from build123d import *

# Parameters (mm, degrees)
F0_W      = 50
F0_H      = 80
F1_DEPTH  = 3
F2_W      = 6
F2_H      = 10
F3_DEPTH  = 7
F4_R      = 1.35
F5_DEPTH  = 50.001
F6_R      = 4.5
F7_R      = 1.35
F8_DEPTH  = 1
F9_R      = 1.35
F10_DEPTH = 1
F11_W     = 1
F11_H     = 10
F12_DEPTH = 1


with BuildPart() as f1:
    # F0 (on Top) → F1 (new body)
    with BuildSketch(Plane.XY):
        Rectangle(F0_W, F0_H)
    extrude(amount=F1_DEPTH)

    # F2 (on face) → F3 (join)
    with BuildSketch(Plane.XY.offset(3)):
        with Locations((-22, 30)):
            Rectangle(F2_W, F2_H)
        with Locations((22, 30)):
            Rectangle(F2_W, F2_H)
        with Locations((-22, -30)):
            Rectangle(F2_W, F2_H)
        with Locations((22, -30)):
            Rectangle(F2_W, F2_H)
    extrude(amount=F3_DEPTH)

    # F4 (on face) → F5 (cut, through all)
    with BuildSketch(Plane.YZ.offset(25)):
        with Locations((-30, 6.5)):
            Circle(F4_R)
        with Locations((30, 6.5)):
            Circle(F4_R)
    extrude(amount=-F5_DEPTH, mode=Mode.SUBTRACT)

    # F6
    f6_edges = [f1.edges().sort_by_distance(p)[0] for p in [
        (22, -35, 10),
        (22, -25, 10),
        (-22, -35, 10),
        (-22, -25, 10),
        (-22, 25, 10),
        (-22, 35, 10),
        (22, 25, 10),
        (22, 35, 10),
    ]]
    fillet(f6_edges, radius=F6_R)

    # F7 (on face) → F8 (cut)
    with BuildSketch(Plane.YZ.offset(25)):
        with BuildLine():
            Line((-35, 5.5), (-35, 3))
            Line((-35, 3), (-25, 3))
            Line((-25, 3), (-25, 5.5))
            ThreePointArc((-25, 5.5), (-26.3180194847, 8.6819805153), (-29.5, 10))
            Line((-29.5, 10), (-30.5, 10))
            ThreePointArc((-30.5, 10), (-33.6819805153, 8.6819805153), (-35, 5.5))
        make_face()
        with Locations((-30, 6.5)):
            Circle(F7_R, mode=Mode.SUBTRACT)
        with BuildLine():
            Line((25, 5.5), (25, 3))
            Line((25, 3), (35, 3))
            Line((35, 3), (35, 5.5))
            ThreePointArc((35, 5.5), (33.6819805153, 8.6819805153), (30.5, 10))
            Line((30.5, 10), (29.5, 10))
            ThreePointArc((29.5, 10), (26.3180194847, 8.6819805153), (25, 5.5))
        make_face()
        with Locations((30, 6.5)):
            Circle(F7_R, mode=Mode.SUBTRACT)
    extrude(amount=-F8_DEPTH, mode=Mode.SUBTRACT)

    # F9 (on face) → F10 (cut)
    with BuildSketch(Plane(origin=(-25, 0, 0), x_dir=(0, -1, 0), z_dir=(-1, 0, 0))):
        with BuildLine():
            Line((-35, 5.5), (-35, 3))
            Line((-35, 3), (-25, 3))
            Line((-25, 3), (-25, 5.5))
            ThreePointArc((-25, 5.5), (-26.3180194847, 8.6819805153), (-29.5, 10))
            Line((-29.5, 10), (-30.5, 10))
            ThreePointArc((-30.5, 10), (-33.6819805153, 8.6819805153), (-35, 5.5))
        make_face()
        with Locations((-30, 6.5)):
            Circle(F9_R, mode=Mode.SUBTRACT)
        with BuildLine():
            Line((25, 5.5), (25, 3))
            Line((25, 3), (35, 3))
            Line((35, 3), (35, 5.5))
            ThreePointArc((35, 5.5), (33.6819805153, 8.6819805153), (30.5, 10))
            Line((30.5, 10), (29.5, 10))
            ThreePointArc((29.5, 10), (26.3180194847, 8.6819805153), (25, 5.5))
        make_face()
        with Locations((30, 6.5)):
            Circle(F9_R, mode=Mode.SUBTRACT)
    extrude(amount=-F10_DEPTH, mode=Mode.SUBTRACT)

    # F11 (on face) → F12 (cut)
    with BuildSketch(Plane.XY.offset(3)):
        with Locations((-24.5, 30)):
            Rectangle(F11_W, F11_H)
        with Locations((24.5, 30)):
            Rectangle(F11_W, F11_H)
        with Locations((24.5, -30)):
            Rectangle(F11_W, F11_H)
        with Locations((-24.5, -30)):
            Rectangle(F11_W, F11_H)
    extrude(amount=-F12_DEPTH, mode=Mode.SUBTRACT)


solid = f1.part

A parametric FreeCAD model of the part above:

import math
import FreeCAD as App
import Part
import Sketcher
Q = App.Units.Quantity


def edges_at(feature, points):
    """Names of the edges that pass closest to the given points."""
    edges = feature.Shape.Edges
    near = lambda p: min(range(len(edges)), key=lambda i: edges[i].distToShape(Part.Vertex(*p))[0])
    return sorted({f"Edge{near(p) + 1}" for p in points})

doc = App.newDocument("Part")
params = doc.addObject("Spreadsheet::Sheet", "Params")
for row, (alias, value) in enumerate([
    ("sketch1_width", "50 mm"),
    ("sketch1_height", "80 mm"),
    ("pad1_length", "3 mm"),
    ("sketch2_width", "6 mm"),
    ("sketch2_height", "10 mm"),
    ("pad2_length", "7 mm"),
    ("sketch3_diameter", "2.7 mm"),
    ("fillet_radius", "4.5 mm"),
    ("sketch4_diameter", "2.7 mm"),
    ("sketch4_radius", "4.5 mm"),
    ("sketch4_width", "10 mm"),
    ("sketch4_height", "2.5 mm"),
    ("pocket2_length", "1 mm"),
    ("sketch5_diameter", "2.7 mm"),
    ("sketch5_radius", "4.5 mm"),
    ("sketch5_width", "10 mm"),
    ("sketch5_height", "2.5 mm"),
    ("pocket3_length", "1 mm"),
    ("sketch6_width", "1 mm"),
    ("sketch6_height", "10 mm"),
    ("pocket4_length", "1 mm"),
], start=1):
    params.set(f"A{row}", alias)
    params.set(f"B{row}", "=" + value)
    params.setAlias(f"B{row}", alias)

body = doc.addObject("PartDesign::Body", "Body")

# Sketch on XY plane
sketch1 = body.newObject("Sketcher::SketchObject", "Sketch")
sketch1.AttachmentSupport = (doc.getObject("XY_Plane"), [""])
sketch1.MapMode = "FlatFace"
sketch1.addGeometry(Part.LineSegment(App.Vector(-25, 40, 0), App.Vector(-25, -40, 0)), False)
sketch1.addGeometry(Part.LineSegment(App.Vector(-25, -40, 0), App.Vector(25, -40, 0)), False)
sketch1.addGeometry(Part.LineSegment(App.Vector(25, -40, 0), App.Vector(25, 40, 0)), False)
sketch1.addGeometry(Part.LineSegment(App.Vector(25, 40, 0), App.Vector(-25, 40, 0)), False)
sketch1.addConstraint(Sketcher.Constraint("Coincident", 0, 2, 1, 1))
sketch1.addConstraint(Sketcher.Constraint("Coincident", 1, 2, 2, 1))
sketch1.addConstraint(Sketcher.Constraint("Coincident", 2, 2, 3, 1))
sketch1.addConstraint(Sketcher.Constraint("Coincident", 3, 2, 0, 1))
sketch1.addConstraint(Sketcher.Constraint("Vertical", 0))
sketch1.addConstraint(Sketcher.Constraint("Horizontal", 1))
sketch1.addConstraint(Sketcher.Constraint("Vertical", 2))
sketch1.addConstraint(Sketcher.Constraint("Horizontal", 3))
sketch1.addConstraint(Sketcher.Constraint("Symmetric", 0, 2, 2, 2, -1, 1))
sketch1.addConstraint(Sketcher.Constraint("DistanceX", 1, 1, 1, 2, Q("50 mm")))
sketch1.addConstraint(Sketcher.Constraint("DistanceY", 0, 2, 0, 1, Q("80 mm")))
sketch1.setExpression("Constraints[9]", "Params.sketch1_width")
sketch1.setExpression("Constraints[10]", "Params.sketch1_height")
pad1 = body.newObject("PartDesign::Pad", "Pad")
pad1.Profile = sketch1
pad1.setExpression("Length", "Params.pad1_length")

# Sketch on XY plane
sketch2 = body.newObject("Sketcher::SketchObject", "Sketch001")
sketch2.AttachmentSupport = (doc.getObject("XY_Plane"), [""])
sketch2.MapMode = "FlatFace"
sketch2.AttachmentOffset = App.Placement(App.Vector(0, 0, 3), App.Rotation())
sketch2.addGeometry(Part.LineSegment(App.Vector(-25, 35, 0), App.Vector(-25, 25, 0)), False)
sketch2.addGeometry(Part.LineSegment(App.Vector(-25, 25, 0), App.Vector(-19, 25, 0)), False)
sketch2.addGeometry(Part.LineSegment(App.Vector(-19, 25, 0), App.Vector(-19, 35, 0)), False)
sketch2.addGeometry(Part.LineSegment(App.Vector(-19, 35, 0), App.Vector(-25, 35, 0)), False)
sketch2.addGeometry(Part.LineSegment(App.Vector(19, 35, 0), App.Vector(19, 25, 0)), False)
sketch2.addGeometry(Part.LineSegment(App.Vector(19, 25, 0), App.Vector(25, 25, 0)), False)
sketch2.addGeometry(Part.LineSegment(App.Vector(25, 25, 0), App.Vector(25, 35, 0)), False)
sketch2.addGeometry(Part.LineSegment(App.Vector(25, 35, 0), App.Vector(19, 35, 0)), False)
sketch2.addGeometry(Part.LineSegment(App.Vector(-25, -25, 0), App.Vector(-25, -35, 0)), False)
sketch2.addGeometry(Part.LineSegment(App.Vector(-25, -35, 0), App.Vector(-19, -35, 0)), False)
sketch2.addGeometry(Part.LineSegment(App.Vector(-19, -35, 0), App.Vector(-19, -25, 0)), False)
sketch2.addGeometry(Part.LineSegment(App.Vector(-19, -25, 0), App.Vector(-25, -25, 0)), False)
sketch2.addGeometry(Part.LineSegment(App.Vector(19, -25, 0), App.Vector(19, -35, 0)), False)
sketch2.addGeometry(Part.LineSegment(App.Vector(19, -35, 0), App.Vector(25, -35, 0)), False)
sketch2.addGeometry(Part.LineSegment(App.Vector(25, -35, 0), App.Vector(25, -25, 0)), False)
sketch2.addGeometry(Part.LineSegment(App.Vector(25, -25, 0), App.Vector(19, -25, 0)), False)
sketch2.addConstraint(Sketcher.Constraint("Coincident", 0, 2, 1, 1))
sketch2.addConstraint(Sketcher.Constraint("Coincident", 1, 2, 2, 1))
sketch2.addConstraint(Sketcher.Constraint("Coincident", 2, 2, 3, 1))
sketch2.addConstraint(Sketcher.Constraint("Coincident", 3, 2, 0, 1))
sketch2.addConstraint(Sketcher.Constraint("Coincident", 4, 2, 5, 1))
sketch2.addConstraint(Sketcher.Constraint("Coincident", 5, 2, 6, 1))
sketch2.addConstraint(Sketcher.Constraint("Coincident", 6, 2, 7, 1))
sketch2.addConstraint(Sketcher.Constraint("Coincident", 7, 2, 4, 1))
sketch2.addConstraint(Sketcher.Constraint("Coincident", 8, 2, 9, 1))
sketch2.addConstraint(Sketcher.Constraint("Coincident", 9, 2, 10, 1))
sketch2.addConstraint(Sketcher.Constraint("Coincident", 10, 2, 11, 1))
sketch2.addConstraint(Sketcher.Constraint("Coincident", 11, 2, 8, 1))
sketch2.addConstraint(Sketcher.Constraint("Coincident", 12, 2, 13, 1))
sketch2.addConstraint(Sketcher.Constraint("Coincident", 13, 2, 14, 1))
sketch2.addConstraint(Sketcher.Constraint("Coincident", 14, 2, 15, 1))
sketch2.addConstraint(Sketcher.Constraint("Coincident", 15, 2, 12, 1))
sketch2.addConstraint(Sketcher.Constraint("Vertical", 0))
sketch2.addConstraint(Sketcher.Constraint("Horizontal", 1))
sketch2.addConstraint(Sketcher.Constraint("Vertical", 2))
sketch2.addConstraint(Sketcher.Constraint("Horizontal", 3))
sketch2.addConstraint(Sketcher.Constraint("Vertical", 4))
sketch2.addConstraint(Sketcher.Constraint("Horizontal", 5))
sketch2.addConstraint(Sketcher.Constraint("Vertical", 6))
sketch2.addConstraint(Sketcher.Constraint("Horizontal", 7))
sketch2.addConstraint(Sketcher.Constraint("Vertical", 8))
sketch2.addConstraint(Sketcher.Constraint("Horizontal", 9))
sketch2.addConstraint(Sketcher.Constraint("Vertical", 10))
sketch2.addConstraint(Sketcher.Constraint("Horizontal", 11))
sketch2.addConstraint(Sketcher.Constraint("Vertical", 12))
sketch2.addConstraint(Sketcher.Constraint("Horizontal", 13))
sketch2.addConstraint(Sketcher.Constraint("Vertical", 14))
sketch2.addConstraint(Sketcher.Constraint("Horizontal", 15))
sketch2.addConstraint(Sketcher.Constraint("Symmetric", 6, 2, 8, 2, -1, 1))
sketch2.addConstraint(Sketcher.Constraint("Symmetric", 4, 2, 10, 2, -1, 1))
sketch2.addConstraint(Sketcher.Constraint("Symmetric", 2, 2, 12, 2, -1, 1))
sketch2.addConstraint(Sketcher.Constraint("Symmetric", 0, 2, 14, 2, -1, 1))
sketch2.addConstraint(Sketcher.Constraint("Symmetric", 1, 2, 4, 2, -2))
sketch2.addConstraint(Sketcher.Constraint("Symmetric", 3, 2, 6, 2, -2))
sketch2.addConstraint(Sketcher.Constraint("DistanceX", 1, 1, 1, 2, Q("6 mm")))
sketch2.addConstraint(Sketcher.Constraint("DistanceY", 0, 2, 0, 1, Q("10 mm")))
sketch2.addConstraint(Sketcher.Constraint("DistanceX", 0, 2, -1, 1, Q("25 mm")))
sketch2.addConstraint(Sketcher.Constraint("DistanceY", -1, 1, 0, 2, Q("25 mm")))
sketch2.setExpression("Constraints[38]", "Params.sketch2_width")
sketch2.setExpression("Constraints[39]", "Params.sketch2_height")
pad2 = body.newObject("PartDesign::Pad", "Pad001")
pad2.Profile = sketch2
pad2.setExpression("Length", "Params.pad2_length")

# Sketch on YZ plane
sketch3 = body.newObject("Sketcher::SketchObject", "Sketch002")
sketch3.AttachmentSupport = (doc.getObject("YZ_Plane"), [""])
sketch3.MapMode = "FlatFace"
sketch3.AttachmentOffset = App.Placement(App.Vector(0, 0, 25), App.Rotation())
sketch3.addGeometry(Part.Circle(App.Vector(-30, 6.5, 0), App.Vector(0, 0, 1), 1.4), False)
sketch3.addGeometry(Part.Circle(App.Vector(30, 6.5, 0), App.Vector(0, 0, 1), 1.4), False)
sketch3.addConstraint(Sketcher.Constraint("Equal", 0, 1))
sketch3.addConstraint(Sketcher.Constraint("Symmetric", 0, 3, 1, 3, -2))
sketch3.addConstraint(Sketcher.Constraint("Diameter", 0, Q("2.7 mm")))
sketch3.addConstraint(Sketcher.Constraint("DistanceX", 0, 3, -1, 1, Q("30 mm")))
sketch3.addConstraint(Sketcher.Constraint("DistanceY", -1, 1, 0, 3, Q("6.5 mm")))
sketch3.setExpression("Constraints[2]", "Params.sketch3_diameter")
pocket1 = body.newObject("PartDesign::Pocket", "Pocket")
pocket1.Profile = sketch3
pocket1.Type = "ThroughAll"
doc.recompute()

fillet = body.newObject("PartDesign::Fillet", "Fillet")
fillet.Base = (pocket1, edges_at(pocket1, [
    (22, -35, 10),
    (22, -25, 10),
    (-22, -35, 10),
    (-22, -25, 10),
    (-22, 25, 10),
    (-22, 35, 10),
    (22, 25, 10),
    (22, 35, 10),
]))
fillet.setExpression("Radius", "Params.fillet_radius")

# Sketch on YZ plane
sketch4 = body.newObject("Sketcher::SketchObject", "Sketch003")
sketch4.AttachmentSupport = (doc.getObject("YZ_Plane"), [""])
sketch4.MapMode = "FlatFace"
sketch4.AttachmentOffset = App.Placement(App.Vector(0, 0, 25), App.Rotation())
sketch4.addGeometry(Part.LineSegment(App.Vector(-35, 5.5, 0), App.Vector(-35, 3, 0)), False)
sketch4.addGeometry(Part.LineSegment(App.Vector(-35, 3, 0), App.Vector(-25, 3, 0)), False)
sketch4.addGeometry(Part.LineSegment(App.Vector(-25, 3, 0), App.Vector(-25, 5.5, 0)), False)
sketch4.addGeometry(Part.ArcOfCircle(Part.Circle(App.Vector(-29.5, 5.5, 0), App.Vector(0, 0, 1), 4.5), math.radians(0), math.radians(90)), False)
sketch4.addGeometry(Part.LineSegment(App.Vector(-29.5, 10, 0), App.Vector(-30.5, 10, 0)), False)
sketch4.addGeometry(Part.ArcOfCircle(Part.Circle(App.Vector(-30.5, 5.5, 0), App.Vector(0, 0, 1), 4.5), math.radians(90), math.radians(180)), False)
sketch4.addGeometry(Part.Circle(App.Vector(-30, 6.5, 0), App.Vector(0, 0, 1), 1.4), False)
sketch4.addGeometry(Part.LineSegment(App.Vector(25, 5.5, 0), App.Vector(25, 3, 0)), False)
sketch4.addGeometry(Part.LineSegment(App.Vector(25, 3, 0), App.Vector(35, 3, 0)), False)
sketch4.addGeometry(Part.LineSegment(App.Vector(35, 3, 0), App.Vector(35, 5.5, 0)), False)
sketch4.addGeometry(Part.ArcOfCircle(Part.Circle(App.Vector(30.5, 5.5, 0), App.Vector(0, 0, 1), 4.5), math.radians(0), math.radians(90)), False)
sketch4.addGeometry(Part.LineSegment(App.Vector(30.5, 10, 0), App.Vector(29.5, 10, 0)), False)
sketch4.addGeometry(Part.ArcOfCircle(Part.Circle(App.Vector(29.5, 5.5, 0), App.Vector(0, 0, 1), 4.5), math.radians(90), math.radians(180)), False)
sketch4.addGeometry(Part.Circle(App.Vector(30, 6.5, 0), App.Vector(0, 0, 1), 1.4), False)
sketch4.addConstraint(Sketcher.Constraint("Coincident", 0, 2, 1, 1))
sketch4.addConstraint(Sketcher.Constraint("Coincident", 1, 2, 2, 1))
sketch4.addConstraint(Sketcher.Constraint("Tangent", 2, 2, 3, 1))
sketch4.addConstraint(Sketcher.Constraint("Tangent", 3, 2, 4, 1))
sketch4.addConstraint(Sketcher.Constraint("Tangent", 4, 2, 5, 1))
sketch4.addConstraint(Sketcher.Constraint("Tangent", 5, 2, 0, 1))
sketch4.addConstraint(Sketcher.Constraint("Coincident", 7, 2, 8, 1))
sketch4.addConstraint(Sketcher.Constraint("Coincident", 8, 2, 9, 1))
sketch4.addConstraint(Sketcher.Constraint("Tangent", 9, 2, 10, 1))
sketch4.addConstraint(Sketcher.Constraint("Tangent", 10, 2, 11, 1))
sketch4.addConstraint(Sketcher.Constraint("Tangent", 11, 2, 12, 1))
sketch4.addConstraint(Sketcher.Constraint("Tangent", 12, 2, 7, 1))
sketch4.addConstraint(Sketcher.Constraint("Vertical", 0))
sketch4.addConstraint(Sketcher.Constraint("Horizontal", 1))
sketch4.addConstraint(Sketcher.Constraint("Vertical", 2))
sketch4.addConstraint(Sketcher.Constraint("Horizontal", 4))
sketch4.addConstraint(Sketcher.Constraint("Vertical", 7))
sketch4.addConstraint(Sketcher.Constraint("Horizontal", 8))
sketch4.addConstraint(Sketcher.Constraint("Vertical", 9))
sketch4.addConstraint(Sketcher.Constraint("Horizontal", 11))
sketch4.addConstraint(Sketcher.Constraint("Equal", 3, 5))
sketch4.addConstraint(Sketcher.Constraint("Equal", 5, 10))
sketch4.addConstraint(Sketcher.Constraint("Equal", 10, 12))
sketch4.addConstraint(Sketcher.Constraint("Equal", 6, 13))
sketch4.addConstraint(Sketcher.Constraint("Symmetric", 5, 3, 10, 3, -2))
sketch4.addConstraint(Sketcher.Constraint("Symmetric", 6, 3, 13, 3, -2))
sketch4.addConstraint(Sketcher.Constraint("Symmetric", 1, 2, 7, 2, -2))
sketch4.addConstraint(Sketcher.Constraint("Diameter", 6, Q("2.7 mm")))
sketch4.addConstraint(Sketcher.Constraint("Radius", 3, Q("4.5 mm")))
sketch4.addConstraint(Sketcher.Constraint("DistanceX", 1, 1, 1, 2, Q("10 mm")))
sketch4.addConstraint(Sketcher.Constraint("DistanceY", 0, 2, 0, 1, Q("2.5 mm")))
sketch4.addConstraint(Sketcher.Constraint("DistanceX", 6, 3, -1, 1, Q("30 mm")))
sketch4.addConstraint(Sketcher.Constraint("DistanceX", 0, 2, -1, 1, Q("35 mm")))
sketch4.addConstraint(Sketcher.Constraint("DistanceY", -1, 1, 0, 2, Q("3 mm")))
sketch4.addConstraint(Sketcher.Constraint("DistanceY", 3, 3, 6, 3, Q("1 mm")))
sketch4.setExpression("Constraints[27]", "Params.sketch4_diameter")
sketch4.setExpression("Constraints[28]", "Params.sketch4_radius")
sketch4.setExpression("Constraints[29]", "Params.sketch4_width")
sketch4.setExpression("Constraints[30]", "Params.sketch4_height")
pocket2 = body.newObject("PartDesign::Pocket", "Pocket001")
pocket2.Profile = sketch4
pocket2.setExpression("Length", "Params.pocket2_length")

# Sketch on YZ plane
sketch5 = body.newObject("Sketcher::SketchObject", "Sketch004")
sketch5.AttachmentSupport = (doc.getObject("YZ_Plane"), [""])
sketch5.MapMode = "FlatFace"
sketch5.AttachmentOffset = App.Placement(App.Vector(0, 0, -25), App.Rotation())
sketch5.addGeometry(Part.LineSegment(App.Vector(35, 5.5, 0), App.Vector(35, 3, 0)), False)
sketch5.addGeometry(Part.LineSegment(App.Vector(35, 3, 0), App.Vector(25, 3, 0)), False)
sketch5.addGeometry(Part.LineSegment(App.Vector(25, 3, 0), App.Vector(25, 5.5, 0)), False)
sketch5.addGeometry(Part.ArcOfCircle(Part.Circle(App.Vector(29.5, 5.5, 0), App.Vector(0, 0, 1), 4.5), math.radians(90), math.radians(180)), False)
sketch5.addGeometry(Part.LineSegment(App.Vector(29.5, 10, 0), App.Vector(30.5, 10, 0)), False)
sketch5.addGeometry(Part.ArcOfCircle(Part.Circle(App.Vector(30.5, 5.5, 0), App.Vector(0, 0, 1), 4.5), math.radians(0), math.radians(90)), False)
sketch5.addGeometry(Part.Circle(App.Vector(30, 6.5, 0), App.Vector(0, 0, 1), 1.4), False)
sketch5.addGeometry(Part.LineSegment(App.Vector(-25, 5.5, 0), App.Vector(-25, 3, 0)), False)
sketch5.addGeometry(Part.LineSegment(App.Vector(-25, 3, 0), App.Vector(-35, 3, 0)), False)
sketch5.addGeometry(Part.LineSegment(App.Vector(-35, 3, 0), App.Vector(-35, 5.5, 0)), False)
sketch5.addGeometry(Part.ArcOfCircle(Part.Circle(App.Vector(-30.5, 5.5, 0), App.Vector(0, 0, 1), 4.5), math.radians(90), math.radians(180)), False)
sketch5.addGeometry(Part.LineSegment(App.Vector(-30.5, 10, 0), App.Vector(-29.5, 10, 0)), False)
sketch5.addGeometry(Part.ArcOfCircle(Part.Circle(App.Vector(-29.5, 5.5, 0), App.Vector(0, 0, 1), 4.5), math.radians(0), math.radians(90)), False)
sketch5.addGeometry(Part.Circle(App.Vector(-30, 6.5, 0), App.Vector(0, 0, 1), 1.4), False)
sketch5.addConstraint(Sketcher.Constraint("Coincident", 0, 2, 1, 1))
sketch5.addConstraint(Sketcher.Constraint("Coincident", 1, 2, 2, 1))
sketch5.addConstraint(Sketcher.Constraint("Tangent", 2, 2, 3, 2))
sketch5.addConstraint(Sketcher.Constraint("Tangent", 3, 1, 4, 1))
sketch5.addConstraint(Sketcher.Constraint("Tangent", 4, 2, 5, 2))
sketch5.addConstraint(Sketcher.Constraint("Tangent", 5, 1, 0, 1))
sketch5.addConstraint(Sketcher.Constraint("Coincident", 7, 2, 8, 1))
sketch5.addConstraint(Sketcher.Constraint("Coincident", 8, 2, 9, 1))
sketch5.addConstraint(Sketcher.Constraint("Tangent", 9, 2, 10, 2))
sketch5.addConstraint(Sketcher.Constraint("Tangent", 10, 1, 11, 1))
sketch5.addConstraint(Sketcher.Constraint("Tangent", 11, 2, 12, 2))
sketch5.addConstraint(Sketcher.Constraint("Tangent", 12, 1, 7, 1))
sketch5.addConstraint(Sketcher.Constraint("Vertical", 0))
sketch5.addConstraint(Sketcher.Constraint("Horizontal", 1))
sketch5.addConstraint(Sketcher.Constraint("Vertical", 2))
sketch5.addConstraint(Sketcher.Constraint("Horizontal", 4))
sketch5.addConstraint(Sketcher.Constraint("Vertical", 7))
sketch5.addConstraint(Sketcher.Constraint("Horizontal", 8))
sketch5.addConstraint(Sketcher.Constraint("Vertical", 9))
sketch5.addConstraint(Sketcher.Constraint("Horizontal", 11))
sketch5.addConstraint(Sketcher.Constraint("Equal", 3, 5))
sketch5.addConstraint(Sketcher.Constraint("Equal", 5, 10))
sketch5.addConstraint(Sketcher.Constraint("Equal", 10, 12))
sketch5.addConstraint(Sketcher.Constraint("Equal", 6, 13))
sketch5.addConstraint(Sketcher.Constraint("Symmetric", 5, 3, 10, 3, -2))
sketch5.addConstraint(Sketcher.Constraint("Symmetric", 6, 3, 13, 3, -2))
sketch5.addConstraint(Sketcher.Constraint("Symmetric", 1, 2, 7, 2, -2))
sketch5.addConstraint(Sketcher.Constraint("Diameter", 6, Q("2.7 mm")))
sketch5.addConstraint(Sketcher.Constraint("Radius", 3, Q("4.5 mm")))
sketch5.addConstraint(Sketcher.Constraint("DistanceX", 1, 2, 1, 1, Q("10 mm")))
sketch5.addConstraint(Sketcher.Constraint("DistanceY", 0, 2, 0, 1, Q("2.5 mm")))
sketch5.addConstraint(Sketcher.Constraint("DistanceX", -1, 1, 6, 3, Q("30 mm")))
sketch5.addConstraint(Sketcher.Constraint("DistanceX", -1, 1, 0, 2, Q("35 mm")))
sketch5.addConstraint(Sketcher.Constraint("DistanceY", -1, 1, 0, 2, Q("3 mm")))
sketch5.addConstraint(Sketcher.Constraint("DistanceY", 3, 3, 6, 3, Q("1 mm")))
sketch5.setExpression("Constraints[27]", "Params.sketch5_diameter")
sketch5.setExpression("Constraints[28]", "Params.sketch5_radius")
sketch5.setExpression("Constraints[29]", "Params.sketch5_width")
sketch5.setExpression("Constraints[30]", "Params.sketch5_height")
pocket3 = body.newObject("PartDesign::Pocket", "Pocket002")
pocket3.Profile = sketch5
pocket3.setExpression("Length", "Params.pocket3_length")
pocket3.Reversed = True

# Sketch on XY plane
sketch6 = body.newObject("Sketcher::SketchObject", "Sketch005")
sketch6.AttachmentSupport = (doc.getObject("XY_Plane"), [""])
sketch6.MapMode = "FlatFace"
sketch6.AttachmentOffset = App.Placement(App.Vector(0, 0, 3), App.Rotation())
sketch6.addGeometry(Part.LineSegment(App.Vector(-25, 35, 0), App.Vector(-25, 25, 0)), False)
sketch6.addGeometry(Part.LineSegment(App.Vector(-25, 25, 0), App.Vector(-24, 25, 0)), False)
sketch6.addGeometry(Part.LineSegment(App.Vector(-24, 25, 0), App.Vector(-24, 35, 0)), False)
sketch6.addGeometry(Part.LineSegment(App.Vector(-24, 35, 0), App.Vector(-25, 35, 0)), False)
sketch6.addGeometry(Part.LineSegment(App.Vector(24, 35, 0), App.Vector(24, 25, 0)), False)
sketch6.addGeometry(Part.LineSegment(App.Vector(24, 25, 0), App.Vector(25, 25, 0)), False)
sketch6.addGeometry(Part.LineSegment(App.Vector(25, 25, 0), App.Vector(25, 35, 0)), False)
sketch6.addGeometry(Part.LineSegment(App.Vector(25, 35, 0), App.Vector(24, 35, 0)), False)
sketch6.addGeometry(Part.LineSegment(App.Vector(24, -25, 0), App.Vector(24, -35, 0)), False)
sketch6.addGeometry(Part.LineSegment(App.Vector(24, -35, 0), App.Vector(25, -35, 0)), False)
sketch6.addGeometry(Part.LineSegment(App.Vector(25, -35, 0), App.Vector(25, -25, 0)), False)
sketch6.addGeometry(Part.LineSegment(App.Vector(25, -25, 0), App.Vector(24, -25, 0)), False)
sketch6.addGeometry(Part.LineSegment(App.Vector(-25, -25, 0), App.Vector(-25, -35, 0)), False)
sketch6.addGeometry(Part.LineSegment(App.Vector(-25, -35, 0), App.Vector(-24, -35, 0)), False)
sketch6.addGeometry(Part.LineSegment(App.Vector(-24, -35, 0), App.Vector(-24, -25, 0)), False)
sketch6.addGeometry(Part.LineSegment(App.Vector(-24, -25, 0), App.Vector(-25, -25, 0)), False)
sketch6.addConstraint(Sketcher.Constraint("Coincident", 0, 2, 1, 1))
sketch6.addConstraint(Sketcher.Constraint("Coincident", 1, 2, 2, 1))
sketch6.addConstraint(Sketcher.Constraint("Coincident", 2, 2, 3, 1))
sketch6.addConstraint(Sketcher.Constraint("Coincident", 3, 2, 0, 1))
sketch6.addConstraint(Sketcher.Constraint("Coincident", 4, 2, 5, 1))
sketch6.addConstraint(Sketcher.Constraint("Coincident", 5, 2, 6, 1))
sketch6.addConstraint(Sketcher.Constraint("Coincident", 6, 2, 7, 1))
sketch6.addConstraint(Sketcher.Constraint("Coincident", 7, 2, 4, 1))
sketch6.addConstraint(Sketcher.Constraint("Coincident", 8, 2, 9, 1))
sketch6.addConstraint(Sketcher.Constraint("Coincident", 9, 2, 10, 1))
sketch6.addConstraint(Sketcher.Constraint("Coincident", 10, 2, 11, 1))
sketch6.addConstraint(Sketcher.Constraint("Coincident", 11, 2, 8, 1))
sketch6.addConstraint(Sketcher.Constraint("Coincident", 12, 2, 13, 1))
sketch6.addConstraint(Sketcher.Constraint("Coincident", 13, 2, 14, 1))
sketch6.addConstraint(Sketcher.Constraint("Coincident", 14, 2, 15, 1))
sketch6.addConstraint(Sketcher.Constraint("Coincident", 15, 2, 12, 1))
sketch6.addConstraint(Sketcher.Constraint("Vertical", 0))
sketch6.addConstraint(Sketcher.Constraint("Horizontal", 1))
sketch6.addConstraint(Sketcher.Constraint("Vertical", 2))
sketch6.addConstraint(Sketcher.Constraint("Horizontal", 3))
sketch6.addConstraint(Sketcher.Constraint("Vertical", 4))
sketch6.addConstraint(Sketcher.Constraint("Horizontal", 5))
sketch6.addConstraint(Sketcher.Constraint("Vertical", 6))
sketch6.addConstraint(Sketcher.Constraint("Horizontal", 7))
sketch6.addConstraint(Sketcher.Constraint("Vertical", 8))
sketch6.addConstraint(Sketcher.Constraint("Horizontal", 9))
sketch6.addConstraint(Sketcher.Constraint("Vertical", 10))
sketch6.addConstraint(Sketcher.Constraint("Horizontal", 11))
sketch6.addConstraint(Sketcher.Constraint("Vertical", 12))
sketch6.addConstraint(Sketcher.Constraint("Horizontal", 13))
sketch6.addConstraint(Sketcher.Constraint("Vertical", 14))
sketch6.addConstraint(Sketcher.Constraint("Horizontal", 15))
sketch6.addConstraint(Sketcher.Constraint("Symmetric", 2, 2, 8, 2, -1, 1))
sketch6.addConstraint(Sketcher.Constraint("Symmetric", 0, 2, 10, 2, -1, 1))
sketch6.addConstraint(Sketcher.Constraint("Symmetric", 6, 2, 12, 2, -1, 1))
sketch6.addConstraint(Sketcher.Constraint("Symmetric", 4, 2, 14, 2, -1, 1))
sketch6.addConstraint(Sketcher.Constraint("Symmetric", 1, 2, 4, 2, -2))
sketch6.addConstraint(Sketcher.Constraint("Symmetric", 3, 2, 6, 2, -2))
sketch6.addConstraint(Sketcher.Constraint("DistanceX", 1, 1, 1, 2, Q("1 mm")))
sketch6.addConstraint(Sketcher.Constraint("DistanceY", 0, 2, 0, 1, Q("10 mm")))
sketch6.addConstraint(Sketcher.Constraint("DistanceX", 0, 2, -1, 1, Q("25 mm")))
sketch6.addConstraint(Sketcher.Constraint("DistanceY", -1, 1, 0, 2, Q("25 mm")))
sketch6.setExpression("Constraints[38]", "Params.sketch6_width")
sketch6.setExpression("Constraints[39]", "Params.sketch6_height")
pocket4 = body.newObject("PartDesign::Pocket", "Pocket003")
pocket4.Profile = sketch6
pocket4.setExpression("Length", "Params.pocket4_length")

doc.recompute()
